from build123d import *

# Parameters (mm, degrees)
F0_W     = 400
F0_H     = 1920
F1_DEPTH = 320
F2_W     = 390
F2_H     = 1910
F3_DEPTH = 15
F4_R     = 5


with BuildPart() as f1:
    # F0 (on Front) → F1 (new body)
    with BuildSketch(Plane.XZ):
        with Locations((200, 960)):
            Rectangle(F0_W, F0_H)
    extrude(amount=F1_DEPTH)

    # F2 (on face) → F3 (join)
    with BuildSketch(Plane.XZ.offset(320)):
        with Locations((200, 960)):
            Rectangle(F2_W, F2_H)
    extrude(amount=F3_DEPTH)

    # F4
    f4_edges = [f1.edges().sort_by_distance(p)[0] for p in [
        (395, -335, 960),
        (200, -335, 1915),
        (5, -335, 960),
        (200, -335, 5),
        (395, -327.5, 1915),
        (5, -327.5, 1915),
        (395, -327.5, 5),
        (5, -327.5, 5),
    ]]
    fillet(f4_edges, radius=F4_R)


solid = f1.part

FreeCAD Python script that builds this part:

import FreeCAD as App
import Part
import Sketcher

V = App.Vector
Q = App.Units.Quantity


def edges_at(feature, points):
    """Names of the edges that pass closest to the given points."""
    edges = feature.Shape.Edges
    near = lambda p: min(range(len(edges)), key=lambda i: edges[i].distToShape(Part.Vertex(*p))[0])
    return sorted({f"Edge{near(p) + 1}" for p in points})

doc = App.newDocument("Part")
params = doc.addObject("Spreadsheet::Sheet", "Params")
for row, (alias, value) in enumerate([
    ("sketch1_width", "400 mm"),
    ("sketch1_height", "1920 mm"),
    ("pad1_length", "320 mm"),
    ("sketch2_width", "390 mm"),
    ("sketch2_height", "1910 mm"),
    ("pad2_length", "15 mm"),
    ("fillet_radius", "5 mm"),
], start=1):
    params.set(f"A{row}", alias)
    params.set(f"B{row}", "=" + value)
    params.setAlias(f"B{row}", alias)

body = doc.addObject("PartDesign::Body", "Body")

# Sketch on XZ plane
sketch1 = doc.addObject("Sketcher::SketchObject", "Sketch")
body.addObject(sketch1)
sketch1.AttachmentSupport = (doc.XZ_Plane, [""])
sketch1.MapMode = "FlatFace"
sketch1.addGeometry([
    Part.LineSegment(V(0, 1920, 0), V(0, 0, 0)),
    Part.LineSegment(V(0, 0, 0), V(400, 0, 0)),
    Part.LineSegment(V(400, 0, 0), V(400, 1920, 0)),
    Part.LineSegment(V(400, 1920, 0), V(0, 1920, 0)),
], False)
sketch1.addConstraint([
    Sketcher.Constraint("Coincident", 0, 2, 1, 1),
    Sketcher.Constraint("Coincident", 1, 2, 2, 1),
    Sketcher.Constraint("Coincident", 2, 2, 3, 1),
    Sketcher.Constraint("Coincident", 3, 2, 0, 1),
    Sketcher.Constraint("Vertical", 0),
    Sketcher.Constraint("Horizontal", 1),
    Sketcher.Constraint("Vertical", 2),
    Sketcher.Constraint("Horizontal", 3),
    Sketcher.Constraint("Coincident", 0, 2, -1, 1),
    Sketcher.Constraint("DistanceX", 1, 1, 1, 2, Q("400 mm")),
    Sketcher.Constraint("DistanceY", 0, 2, 0, 1, Q("1920 mm")),
])
sketch1.setExpression("Constraints[9]", "Params.sketch1_width")
sketch1.setExpression("Constraints[10]", "Params.sketch1_height")
pad1 = doc.addObject("PartDesign::Pad", "Pad")
body.addObject(pad1)
pad1.Profile = sketch1
pad1.setExpression("Length", "Params.pad1_length")

# Sketch on XZ plane
sketch2 = doc.addObject("Sketcher::SketchObject", "Sketch001")
body.addObject(sketch2)
sketch2.AttachmentSupport = (doc.XZ_Plane, [""])
sketch2.MapMode = "FlatFace"
sketch2.AttachmentOffset = App.Placement(V(0, 0, 320), App.Rotation())
sketch2.addGeometry([
    Part.LineSegment(V(5, 1915, 0), V(5, 5, 0)),
    Part.LineSegment(V(5, 5, 0), V(395, 5, 0)),
    Part.LineSegment(V(395, 5, 0), V(395, 1915, 0)),
    Part.LineSegment(V(395, 1915, 0), V(5, 1915, 0)),
], False)
sketch2.addConstraint([
    Sketcher.Constraint("Coincident", 0, 2, 1, 1),
    Sketcher.Constraint("Coincident", 1, 2, 2, 1),
    Sketcher.Constraint("Coincident", 2, 2, 3, 1),
    Sketcher.Constraint("Coincident", 3, 2, 0, 1),
    Sketcher.Constraint("Vertical", 0),
    Sketcher.Constraint("Horizontal", 1),
    Sketcher.Constraint("Vertical", 2),
    Sketcher.Constraint("Horizontal", 3),
    Sketcher.Constraint("DistanceX", 1, 1, 1, 2, Q("390 mm")),
    Sketcher.Constraint("DistanceY", 0, 2, 0, 1, Q("1910 mm")),
    Sketcher.Constraint("DistanceX", -1, 1, 0, 2, Q("5 mm")),
    Sketcher.Constraint("DistanceY", -1, 1, 0, 2, Q("5 mm")),
])
sketch2.setExpression("Constraints[8]", "Params.sketch2_width")
sketch2.setExpression("Constraints[9]", "Params.sketch2_height")
pad2 = doc.addObject("PartDesign::Pad", "Pad001")
body.addObject(pad2)
pad2.Profile = sketch2
pad2.setExpression("Length", "Params.pad2_length")
doc.recompute()

fillet = doc.addObject("PartDesign::Fillet", "Fillet")
body.addObject(fillet)
fillet.Base = (pad2, edges_at(pad2, [
    (395, -335, 960),
    (200, -335, 1915),
    (5, -335, 960),
    (200, -335, 5),
    (395, -327.5, 1915),
    (5, -327.5, 1915),
    (395, -327.5, 5),
    (5, -327.5, 5),
]))
fillet.setExpression("Radius", "Params.fillet_radius")

doc.recompute()
